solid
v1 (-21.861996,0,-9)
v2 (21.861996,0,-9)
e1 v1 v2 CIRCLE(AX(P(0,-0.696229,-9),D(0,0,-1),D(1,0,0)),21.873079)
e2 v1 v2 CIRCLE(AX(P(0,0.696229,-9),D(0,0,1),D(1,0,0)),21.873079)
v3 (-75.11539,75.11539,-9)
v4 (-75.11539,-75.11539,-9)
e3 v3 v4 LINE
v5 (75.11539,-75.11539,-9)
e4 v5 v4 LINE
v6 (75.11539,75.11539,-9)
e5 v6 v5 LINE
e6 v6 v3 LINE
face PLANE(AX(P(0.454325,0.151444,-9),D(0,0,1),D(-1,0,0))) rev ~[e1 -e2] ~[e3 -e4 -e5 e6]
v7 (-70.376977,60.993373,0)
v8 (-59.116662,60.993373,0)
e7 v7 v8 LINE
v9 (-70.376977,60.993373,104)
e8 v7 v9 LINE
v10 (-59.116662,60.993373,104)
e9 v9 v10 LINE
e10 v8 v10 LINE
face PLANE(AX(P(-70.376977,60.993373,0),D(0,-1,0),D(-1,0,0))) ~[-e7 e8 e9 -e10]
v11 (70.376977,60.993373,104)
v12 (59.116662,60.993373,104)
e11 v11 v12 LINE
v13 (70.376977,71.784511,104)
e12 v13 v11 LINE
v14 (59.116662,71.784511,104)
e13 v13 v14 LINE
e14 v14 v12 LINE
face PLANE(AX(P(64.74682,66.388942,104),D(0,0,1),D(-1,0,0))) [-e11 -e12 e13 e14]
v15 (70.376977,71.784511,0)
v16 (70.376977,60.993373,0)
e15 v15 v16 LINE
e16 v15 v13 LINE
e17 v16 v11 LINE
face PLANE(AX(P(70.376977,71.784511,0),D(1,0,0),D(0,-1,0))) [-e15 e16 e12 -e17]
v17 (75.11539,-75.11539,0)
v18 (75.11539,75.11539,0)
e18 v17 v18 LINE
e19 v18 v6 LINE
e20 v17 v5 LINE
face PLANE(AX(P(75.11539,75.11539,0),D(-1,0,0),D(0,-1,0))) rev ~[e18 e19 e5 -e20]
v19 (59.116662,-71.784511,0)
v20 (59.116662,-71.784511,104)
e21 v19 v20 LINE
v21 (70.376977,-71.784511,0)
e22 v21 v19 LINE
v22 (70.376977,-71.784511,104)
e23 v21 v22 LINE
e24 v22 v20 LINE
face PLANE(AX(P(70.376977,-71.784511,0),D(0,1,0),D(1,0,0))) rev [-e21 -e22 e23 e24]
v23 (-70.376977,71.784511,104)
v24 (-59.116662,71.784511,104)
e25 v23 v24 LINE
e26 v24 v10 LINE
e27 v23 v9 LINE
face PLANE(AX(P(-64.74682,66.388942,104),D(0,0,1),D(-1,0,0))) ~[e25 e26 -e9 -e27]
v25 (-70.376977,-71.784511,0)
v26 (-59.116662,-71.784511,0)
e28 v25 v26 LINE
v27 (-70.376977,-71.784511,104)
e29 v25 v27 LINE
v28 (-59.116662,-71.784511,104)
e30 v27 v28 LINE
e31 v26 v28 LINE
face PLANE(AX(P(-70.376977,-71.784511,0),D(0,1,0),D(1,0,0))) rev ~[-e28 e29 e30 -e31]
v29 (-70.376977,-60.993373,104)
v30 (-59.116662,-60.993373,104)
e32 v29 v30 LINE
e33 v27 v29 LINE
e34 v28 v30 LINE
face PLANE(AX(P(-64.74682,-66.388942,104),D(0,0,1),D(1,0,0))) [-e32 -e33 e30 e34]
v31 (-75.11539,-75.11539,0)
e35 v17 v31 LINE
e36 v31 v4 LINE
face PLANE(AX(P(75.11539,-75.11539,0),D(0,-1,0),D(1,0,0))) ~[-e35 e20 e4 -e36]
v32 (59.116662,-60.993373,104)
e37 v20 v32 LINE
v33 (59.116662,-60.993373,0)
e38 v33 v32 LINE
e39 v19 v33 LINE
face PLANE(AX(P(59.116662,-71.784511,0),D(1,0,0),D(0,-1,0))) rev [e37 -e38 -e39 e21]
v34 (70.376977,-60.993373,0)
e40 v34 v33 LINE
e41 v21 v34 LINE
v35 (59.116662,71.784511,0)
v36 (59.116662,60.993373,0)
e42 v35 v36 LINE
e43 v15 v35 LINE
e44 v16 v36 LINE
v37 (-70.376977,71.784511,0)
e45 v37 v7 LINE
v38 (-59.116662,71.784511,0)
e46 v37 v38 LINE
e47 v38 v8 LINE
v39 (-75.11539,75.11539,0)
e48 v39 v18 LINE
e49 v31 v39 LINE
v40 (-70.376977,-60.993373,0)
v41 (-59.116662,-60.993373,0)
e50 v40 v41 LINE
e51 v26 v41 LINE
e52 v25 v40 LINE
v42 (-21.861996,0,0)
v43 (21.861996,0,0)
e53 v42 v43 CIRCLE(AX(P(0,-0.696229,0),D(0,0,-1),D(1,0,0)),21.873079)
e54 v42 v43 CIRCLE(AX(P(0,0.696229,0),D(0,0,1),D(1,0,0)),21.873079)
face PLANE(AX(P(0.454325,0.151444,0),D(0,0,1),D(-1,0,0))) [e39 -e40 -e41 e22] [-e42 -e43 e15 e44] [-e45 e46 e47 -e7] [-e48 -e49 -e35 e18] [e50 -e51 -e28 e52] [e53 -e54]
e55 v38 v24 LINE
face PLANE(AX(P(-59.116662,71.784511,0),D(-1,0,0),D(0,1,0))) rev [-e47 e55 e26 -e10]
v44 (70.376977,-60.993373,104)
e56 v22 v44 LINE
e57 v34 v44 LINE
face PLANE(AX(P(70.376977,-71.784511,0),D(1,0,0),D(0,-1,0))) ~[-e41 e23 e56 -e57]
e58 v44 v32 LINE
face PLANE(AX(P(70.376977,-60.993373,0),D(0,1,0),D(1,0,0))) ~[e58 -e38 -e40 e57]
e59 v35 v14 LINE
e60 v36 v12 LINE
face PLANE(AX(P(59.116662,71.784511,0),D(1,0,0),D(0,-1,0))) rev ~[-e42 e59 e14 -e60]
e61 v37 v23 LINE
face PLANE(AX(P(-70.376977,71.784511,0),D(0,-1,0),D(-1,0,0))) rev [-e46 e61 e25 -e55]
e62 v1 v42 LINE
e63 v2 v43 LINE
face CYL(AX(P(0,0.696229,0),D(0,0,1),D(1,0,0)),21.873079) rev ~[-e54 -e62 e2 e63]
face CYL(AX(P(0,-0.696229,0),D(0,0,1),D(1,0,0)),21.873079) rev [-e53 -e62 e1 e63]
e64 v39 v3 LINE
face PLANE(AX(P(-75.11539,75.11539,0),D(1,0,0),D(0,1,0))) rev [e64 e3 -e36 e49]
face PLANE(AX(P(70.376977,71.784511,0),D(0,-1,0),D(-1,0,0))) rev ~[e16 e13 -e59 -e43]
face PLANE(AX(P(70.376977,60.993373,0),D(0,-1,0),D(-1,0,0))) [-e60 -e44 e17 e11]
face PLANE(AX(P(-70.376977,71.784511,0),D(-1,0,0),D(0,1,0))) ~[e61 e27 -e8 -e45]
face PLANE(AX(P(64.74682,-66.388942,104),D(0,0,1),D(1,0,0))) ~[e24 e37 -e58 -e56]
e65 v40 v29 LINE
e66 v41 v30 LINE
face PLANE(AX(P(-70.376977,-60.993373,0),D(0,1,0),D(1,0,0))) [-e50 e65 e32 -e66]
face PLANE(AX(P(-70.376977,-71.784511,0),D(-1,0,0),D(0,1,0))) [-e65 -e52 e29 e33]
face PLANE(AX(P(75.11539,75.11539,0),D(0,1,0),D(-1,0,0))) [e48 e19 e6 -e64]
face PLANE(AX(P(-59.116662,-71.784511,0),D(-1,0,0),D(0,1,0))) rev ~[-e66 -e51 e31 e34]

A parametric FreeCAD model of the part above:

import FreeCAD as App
import Part
import Sketcher

doc = App.newDocument("Part")
body = doc.addObject("PartDesign::Body", "Body")

# Sketch on XY plane
sketch1 = body.newObject("Sketcher::SketchObject", "Sketch")
sketch1.AttachmentSupport = (doc.getObject("XY_Plane"), [""])
sketch1.MapMode = "FlatFace"
sketch1.addGeometry(Part.LineSegment(App.Vector(-70, -61, 0), App.Vector(-70, -72, 0)), False)
sketch1.addGeometry(Part.LineSegment(App.Vector(-70, -72, 0), App.Vector(-59, -72, 0)), False)
sketch1.addGeometry(Part.LineSegment(App.Vector(-59, -72, 0), App.Vector(-59, -61, 0)), False)
sketch1.addGeometry(Part.LineSegment(App.Vector(-59, -61, 0), App.Vector(-70, -61, 0)), False)
sketch1.addConstraint(Sketcher.Constraint("Coincident", 0, 2, 1, 1))
sketch1.addConstraint(Sketcher.Constraint("Coincident", 1, 2, 2, 1))
sketch1.addConstraint(Sketcher.Constraint("Coincident", 2, 2, 3, 1))
sketch1.addConstraint(Sketcher.Constraint("Coincident", 3, 2, 0, 1))
sketch1.addConstraint(Sketcher.Constraint("Vertical", 0))
sketch1.addConstraint(Sketcher.Constraint("Horizontal", 1))
sketch1.addConstraint(Sketcher.Constraint("Vertical", 2))
sketch1.addConstraint(Sketcher.Constraint("Horizontal", 3))
sketch1.addConstraint(Sketcher.Constraint("DistanceX", 1, 1, 1, 2, 11.260315))
sketch1.addConstraint(Sketcher.Constraint("DistanceY", 0, 2, 0, 1, 10.791138))
sketch1.addConstraint(Sketcher.Constraint("DistanceY", 0, 2, -1, 1, 71.784511))
sketch1.addConstraint(Sketcher.Constraint("DistanceX", 0, 2, -1, 1, 70.376977))
pad1 = body.newObject("PartDesign::Pad", "Pad")
pad1.Profile = sketch1
pad1.Length = 104

# Sketch on XY plane
sketch2 = body.newObject("Sketcher::SketchObject", "Sketch001")
sketch2.AttachmentSupport = (doc.getObject("XY_Plane"), [""])
sketch2.MapMode = "FlatFace"
sketch2.addGeometry(Part.LineSegment(App.Vector(-75, 75, 0), App.Vector(-75, -75, 0)), False)
sketch2.addGeometry(Part.LineSegment(App.Vector(-75, -75, 0), App.Vector(74, -75, 0)), False)
sketch2.addGeometry(Part.LineSegment(App.Vector(74, -75, 0), App.Vector(74, 75, 0)), False)
sketch2.addGeometry(Part.LineSegment(App.Vector(74, 75, 0), App.Vector(-75, 75, 0)), False)
sketch2.addConstraint(Sketcher.Constraint("Coincident", 0, 2, 1, 1))
sketch2.addConstraint(Sketcher.Constraint("Coincident", 1, 2, 2, 1))
sketch2.addConstraint(Sketcher.Constraint("Coincident", 2, 2, 3, 1))
sketch2.addConstraint(Sketcher.Constraint("Coincident", 3, 2, 0, 1))
sketch2.addConstraint(Sketcher.Constraint("Vertical", 0))
sketch2.addConstraint(Sketcher.Constraint("Horizontal", 1))
sketch2.addConstraint(Sketcher.Constraint("Vertical", 2))
sketch2.addConstraint(Sketcher.Constraint("Horizontal", 3))
sketch2.addConstraint(Sketcher.Constraint("DistanceX", 1, 1, 1, 2, 149.32213))
sketch2.addConstraint(Sketcher.Constraint("DistanceY", 0, 2, 0, 1, 149.927892))
sketch2.addConstraint(Sketcher.Constraint("DistanceY", -1, 1, 2, 2, 74.812502))
sketch2.addConstraint(Sketcher.Constraint("DistanceX", 0, 2, -1, 1, 75.11539))
pad2 = body.newObject("PartDesign::Pad", "Pad001")
pad2.Profile = sketch2
pad2.Length = 9
pad2.Reversed = True

# Sketch on XY plane
sketch3 = body.newObject("Sketcher::SketchObject", "Sketch002")
sketch3.AttachmentSupport = (doc.getObject("XY_Plane"), [""])
sketch3.MapMode = "FlatFace"
sketch3.addGeometry(Part.Circle(App.Vector(0, 1, 0), App.Vector(0, 0, 1), 22), False)
sketch3.addConstraint(Sketcher.Constraint("PointOnObject", 0, 3, -2))
sketch3.addConstraint(Sketcher.Constraint("Diameter", 0, 43.746158))
sketch3.addConstraint(Sketcher.Constraint("DistanceY", -1, 1, 0, 3, 0.696229))
pocket1 = body.newObject("PartDesign::Pocket", "Pocket")
pocket1.Profile = sketch3
pocket1.Type = "ThroughAll"
body2 = doc.addObject("PartDesign::Body", "Body001")
doc.recompute()

body2.BaseFeature = body
doc.recompute()

mirroring = doc.addObject("Part::Mirroring", "Mirroring")
mirroring.Source = body
mirroring.Base = App.Vector(0, 0, 0)
mirroring.Normal = App.Vector(0, -1, 0)
body3 = doc.addObject("PartDesign::Body", "Body002")
body3.BaseFeature = mirroring
boolean = body2.newObject("PartDesign::Boolean", "Boolean")
boolean.Type = "Fuse"
boolean.addObjects([body3])
doc.recompute()
body4 = doc.addObject("PartDesign::Body", "Body003")
doc.recompute()

body4.BaseFeature = body2
doc.recompute()

mirroring2 = doc.addObject("Part::Mirroring", "Mirroring001")
mirroring2.Source = body2
mirroring2.Base = App.Vector(0, 0, 0)
mirroring2.Normal = App.Vector(1, 0, 0)
body5 = doc.addObject("PartDesign::Body", "Body004")
body5.BaseFeature = mirroring2
boolean2 = body4.newObject("PartDesign::Boolean", "Boolean001")
boolean2.Type = "Fuse"
boolean2.addObjects([body5])
doc.recompute()
mirroring.Visibility = False
mirroring2.Visibility = False

doc.recompute()
